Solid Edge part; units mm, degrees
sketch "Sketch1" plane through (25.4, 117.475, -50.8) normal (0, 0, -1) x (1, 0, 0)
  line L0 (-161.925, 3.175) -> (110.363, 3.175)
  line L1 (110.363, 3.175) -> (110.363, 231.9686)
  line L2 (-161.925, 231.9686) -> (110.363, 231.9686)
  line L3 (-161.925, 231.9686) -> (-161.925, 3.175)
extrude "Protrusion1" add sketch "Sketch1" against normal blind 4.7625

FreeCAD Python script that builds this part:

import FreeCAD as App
import Part
import Sketcher
Q = App.Units.Quantity


def add_polygon(sketch, points):
    """Adds a closed chain of lines whose ends are joined by coincident constraints."""
    first, n = sketch.GeometryCount, len(points)
    for a, b in zip(points, points[1:] + points[:1]):
        sketch.addGeometry(Part.LineSegment(App.Vector(*a, 0), App.Vector(*b, 0)), False)
    for i in range(n):
        sketch.addConstraint(Sketcher.Constraint("Coincident", first + i, 2, first + (i + 1) % n, 1))

doc = App.newDocument("Part")
body = doc.addObject("PartDesign::Body", "Body")

sketch1 = body.newObject("Sketcher::SketchObject", "Sketch")
sketch1.AttachmentSupport = (doc.getObject("XY_Plane"), [""])
sketch1.MapMode = "FlatFace"
sketch1.AttachmentOffset = App.Placement(App.Vector(0, 0, -2 * 25.4), App.Rotation())
add_polygon(sketch1, [(-137, -114), (-137, 114), (136, 114), (136, -114)])
sketch1.addConstraint(Sketcher.Constraint("Vertical", 0))
sketch1.addConstraint(Sketcher.Constraint("Horizontal", 1))
sketch1.addConstraint(Sketcher.Constraint("Vertical", 2))
sketch1.addConstraint(Sketcher.Constraint("Horizontal", 3))
sketch1.addConstraint(Sketcher.Constraint("DistanceX", 1, 1, 1, 2, Q("10.72 in")))
sketch1.addConstraint(Sketcher.Constraint("DistanceY", -1, 1, 0, 2, Q("4.5 in")))
sketch1.addConstraint(Sketcher.Constraint("DistanceX", 0, 2, -1, 1, Q("5.375 in")))
sketch1.addConstraint(Sketcher.Constraint("DistanceY", 0, 1, 0, 2, Q("228.7936 mm")))
pad1 = body.newObject("PartDesign::Pad", "Pad")
pad1.Profile = sketch1
pad1.Length = Q("0.1875 in")

doc.recompute()
